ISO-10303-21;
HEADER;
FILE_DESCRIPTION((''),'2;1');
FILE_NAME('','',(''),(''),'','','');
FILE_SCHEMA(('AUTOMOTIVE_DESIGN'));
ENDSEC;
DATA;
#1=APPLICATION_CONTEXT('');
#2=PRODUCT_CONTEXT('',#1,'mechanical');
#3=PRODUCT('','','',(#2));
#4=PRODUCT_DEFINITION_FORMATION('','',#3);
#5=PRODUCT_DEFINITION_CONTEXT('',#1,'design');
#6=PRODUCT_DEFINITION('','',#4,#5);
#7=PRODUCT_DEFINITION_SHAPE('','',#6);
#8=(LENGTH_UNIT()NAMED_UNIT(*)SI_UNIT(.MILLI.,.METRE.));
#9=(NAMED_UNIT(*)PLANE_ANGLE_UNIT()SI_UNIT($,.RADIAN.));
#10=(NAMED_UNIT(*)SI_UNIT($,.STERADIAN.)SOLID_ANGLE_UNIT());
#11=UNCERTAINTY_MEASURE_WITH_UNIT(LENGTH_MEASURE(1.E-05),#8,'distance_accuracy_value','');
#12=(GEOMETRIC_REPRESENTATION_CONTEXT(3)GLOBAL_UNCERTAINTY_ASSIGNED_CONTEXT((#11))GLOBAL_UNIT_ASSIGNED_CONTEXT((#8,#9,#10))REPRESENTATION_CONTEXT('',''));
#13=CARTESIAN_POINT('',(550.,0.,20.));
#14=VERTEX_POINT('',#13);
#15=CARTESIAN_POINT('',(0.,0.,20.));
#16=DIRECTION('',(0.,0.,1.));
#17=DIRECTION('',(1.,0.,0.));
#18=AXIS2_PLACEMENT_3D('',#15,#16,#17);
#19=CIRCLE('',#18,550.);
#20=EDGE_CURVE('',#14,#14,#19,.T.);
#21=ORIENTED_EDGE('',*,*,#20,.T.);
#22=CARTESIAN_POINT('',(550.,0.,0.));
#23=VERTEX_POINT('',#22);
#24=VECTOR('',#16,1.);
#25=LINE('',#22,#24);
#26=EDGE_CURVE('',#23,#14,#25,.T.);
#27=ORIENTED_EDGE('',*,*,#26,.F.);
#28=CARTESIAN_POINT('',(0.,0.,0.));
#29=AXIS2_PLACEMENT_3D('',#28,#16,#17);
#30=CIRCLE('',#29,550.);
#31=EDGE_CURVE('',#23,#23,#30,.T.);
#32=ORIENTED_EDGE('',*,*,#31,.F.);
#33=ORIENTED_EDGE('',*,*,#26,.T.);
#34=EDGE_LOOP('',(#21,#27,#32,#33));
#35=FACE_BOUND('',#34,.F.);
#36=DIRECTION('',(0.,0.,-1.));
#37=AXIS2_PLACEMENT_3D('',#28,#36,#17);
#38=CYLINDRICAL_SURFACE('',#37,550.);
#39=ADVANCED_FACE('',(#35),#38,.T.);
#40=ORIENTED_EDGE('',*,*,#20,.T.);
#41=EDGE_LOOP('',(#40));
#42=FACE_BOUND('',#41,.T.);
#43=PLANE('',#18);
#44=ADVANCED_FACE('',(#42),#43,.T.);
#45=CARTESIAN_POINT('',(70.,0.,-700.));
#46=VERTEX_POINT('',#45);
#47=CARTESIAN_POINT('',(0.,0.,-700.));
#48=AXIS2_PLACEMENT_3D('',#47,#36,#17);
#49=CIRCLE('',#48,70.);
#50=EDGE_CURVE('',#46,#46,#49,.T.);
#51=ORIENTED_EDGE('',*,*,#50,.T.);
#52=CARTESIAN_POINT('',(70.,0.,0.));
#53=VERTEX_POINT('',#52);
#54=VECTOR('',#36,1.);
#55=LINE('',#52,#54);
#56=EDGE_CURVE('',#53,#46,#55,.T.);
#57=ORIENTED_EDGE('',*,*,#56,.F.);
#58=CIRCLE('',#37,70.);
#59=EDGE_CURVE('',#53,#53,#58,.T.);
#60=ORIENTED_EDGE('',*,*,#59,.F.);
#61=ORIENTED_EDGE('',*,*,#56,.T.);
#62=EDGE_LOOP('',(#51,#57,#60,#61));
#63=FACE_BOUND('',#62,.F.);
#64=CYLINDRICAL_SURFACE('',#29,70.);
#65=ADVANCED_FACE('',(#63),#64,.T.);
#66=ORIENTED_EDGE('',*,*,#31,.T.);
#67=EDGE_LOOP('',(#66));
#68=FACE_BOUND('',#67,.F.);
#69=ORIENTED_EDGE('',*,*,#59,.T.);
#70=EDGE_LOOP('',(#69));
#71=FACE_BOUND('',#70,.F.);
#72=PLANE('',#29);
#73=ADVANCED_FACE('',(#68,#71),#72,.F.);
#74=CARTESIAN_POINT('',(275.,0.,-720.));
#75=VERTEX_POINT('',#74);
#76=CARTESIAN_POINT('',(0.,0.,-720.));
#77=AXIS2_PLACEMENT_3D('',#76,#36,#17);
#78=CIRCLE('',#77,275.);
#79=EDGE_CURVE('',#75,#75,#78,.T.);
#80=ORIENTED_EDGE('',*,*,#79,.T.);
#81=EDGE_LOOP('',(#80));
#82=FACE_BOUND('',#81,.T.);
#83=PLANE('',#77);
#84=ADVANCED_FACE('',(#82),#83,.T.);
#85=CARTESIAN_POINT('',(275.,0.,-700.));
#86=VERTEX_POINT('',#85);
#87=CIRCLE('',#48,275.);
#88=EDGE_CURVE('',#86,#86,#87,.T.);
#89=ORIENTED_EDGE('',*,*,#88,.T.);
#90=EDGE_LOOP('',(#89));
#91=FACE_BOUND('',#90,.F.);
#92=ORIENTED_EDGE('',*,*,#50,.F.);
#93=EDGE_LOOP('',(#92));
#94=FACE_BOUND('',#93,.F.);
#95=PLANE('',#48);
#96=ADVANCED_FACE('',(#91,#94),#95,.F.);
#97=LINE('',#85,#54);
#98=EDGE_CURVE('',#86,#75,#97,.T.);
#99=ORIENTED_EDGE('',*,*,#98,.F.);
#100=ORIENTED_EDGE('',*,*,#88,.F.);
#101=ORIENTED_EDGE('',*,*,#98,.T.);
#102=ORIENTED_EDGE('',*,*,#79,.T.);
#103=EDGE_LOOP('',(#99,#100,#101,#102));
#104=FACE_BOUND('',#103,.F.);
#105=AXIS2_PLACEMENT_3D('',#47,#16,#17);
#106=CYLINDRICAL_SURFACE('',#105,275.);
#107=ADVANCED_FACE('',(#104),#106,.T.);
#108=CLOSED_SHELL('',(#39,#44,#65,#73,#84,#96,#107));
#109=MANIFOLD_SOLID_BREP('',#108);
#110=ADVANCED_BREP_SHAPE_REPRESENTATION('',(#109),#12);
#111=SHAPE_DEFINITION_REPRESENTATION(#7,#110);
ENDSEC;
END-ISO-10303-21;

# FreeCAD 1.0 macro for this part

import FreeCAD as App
import Part
import Sketcher
from FreeCAD import Vector

doc = App.newDocument("Part")
body = doc.addObject("PartDesign::Body", "Body")

# Sketch on XY plane
sketch1 = body.newObject("Sketcher::SketchObject", "Sketch")
sketch1.AttachmentSupport = (doc.getObject("XY_Plane"), [""])
sketch1.MapMode = "FlatFace"
sketch1.addGeometry(Part.Circle(Vector(0, 0, 0), Vector(0, 0, 1), 550), False)
sketch1.addConstraint([
    Sketcher.Constraint("Coincident", 0, 3, -1, 1),
    Sketcher.Constraint("Diameter", 0, 1100.0),
])
pad1 = body.newObject("PartDesign::Pad", "Pad")
pad1.Profile = sketch1
pad1.Length = 20

# Sketch on XY plane
sketch2 = body.newObject("Sketcher::SketchObject", "Sketch001")
sketch2.AttachmentSupport = (doc.getObject("XY_Plane"), [""])
sketch2.MapMode = "FlatFace"
sketch2.addGeometry(Part.Circle(Vector(0, 0, 0), Vector(0, 0, 1), 70), False)
sketch2.addConstraint([
    Sketcher.Constraint("Coincident", 0, 3, -1, 1),
    Sketcher.Constraint("Diameter", 0, 140.0),
])
pad2 = body.newObject("PartDesign::Pad", "Pad001")
pad2.Profile = sketch2
pad2.Length = 700
pad2.Reversed = True

# Sketch on XY plane
sketch3 = body.newObject("Sketcher::SketchObject", "Sketch002")
sketch3.AttachmentSupport = (doc.getObject("XY_Plane"), [""])
sketch3.MapMode = "FlatFace"
sketch3.AttachmentOffset = App.Placement(Vector(0, 0, -700), App.Rotation())
sketch3.addGeometry(Part.Circle(Vector(0, 0, 0), Vector(0, 0, 1), 275), False)
sketch3.addConstraint([
    Sketcher.Constraint("Coincident", 0, 3, -1, 1),
    Sketcher.Constraint("Diameter", 0, 550.0),
])
pad3 = body.newObject("PartDesign::Pad", "Pad002")
pad3.Profile = sketch3
pad3.Length = 20
pad3.Reversed = True

doc.recompute()
